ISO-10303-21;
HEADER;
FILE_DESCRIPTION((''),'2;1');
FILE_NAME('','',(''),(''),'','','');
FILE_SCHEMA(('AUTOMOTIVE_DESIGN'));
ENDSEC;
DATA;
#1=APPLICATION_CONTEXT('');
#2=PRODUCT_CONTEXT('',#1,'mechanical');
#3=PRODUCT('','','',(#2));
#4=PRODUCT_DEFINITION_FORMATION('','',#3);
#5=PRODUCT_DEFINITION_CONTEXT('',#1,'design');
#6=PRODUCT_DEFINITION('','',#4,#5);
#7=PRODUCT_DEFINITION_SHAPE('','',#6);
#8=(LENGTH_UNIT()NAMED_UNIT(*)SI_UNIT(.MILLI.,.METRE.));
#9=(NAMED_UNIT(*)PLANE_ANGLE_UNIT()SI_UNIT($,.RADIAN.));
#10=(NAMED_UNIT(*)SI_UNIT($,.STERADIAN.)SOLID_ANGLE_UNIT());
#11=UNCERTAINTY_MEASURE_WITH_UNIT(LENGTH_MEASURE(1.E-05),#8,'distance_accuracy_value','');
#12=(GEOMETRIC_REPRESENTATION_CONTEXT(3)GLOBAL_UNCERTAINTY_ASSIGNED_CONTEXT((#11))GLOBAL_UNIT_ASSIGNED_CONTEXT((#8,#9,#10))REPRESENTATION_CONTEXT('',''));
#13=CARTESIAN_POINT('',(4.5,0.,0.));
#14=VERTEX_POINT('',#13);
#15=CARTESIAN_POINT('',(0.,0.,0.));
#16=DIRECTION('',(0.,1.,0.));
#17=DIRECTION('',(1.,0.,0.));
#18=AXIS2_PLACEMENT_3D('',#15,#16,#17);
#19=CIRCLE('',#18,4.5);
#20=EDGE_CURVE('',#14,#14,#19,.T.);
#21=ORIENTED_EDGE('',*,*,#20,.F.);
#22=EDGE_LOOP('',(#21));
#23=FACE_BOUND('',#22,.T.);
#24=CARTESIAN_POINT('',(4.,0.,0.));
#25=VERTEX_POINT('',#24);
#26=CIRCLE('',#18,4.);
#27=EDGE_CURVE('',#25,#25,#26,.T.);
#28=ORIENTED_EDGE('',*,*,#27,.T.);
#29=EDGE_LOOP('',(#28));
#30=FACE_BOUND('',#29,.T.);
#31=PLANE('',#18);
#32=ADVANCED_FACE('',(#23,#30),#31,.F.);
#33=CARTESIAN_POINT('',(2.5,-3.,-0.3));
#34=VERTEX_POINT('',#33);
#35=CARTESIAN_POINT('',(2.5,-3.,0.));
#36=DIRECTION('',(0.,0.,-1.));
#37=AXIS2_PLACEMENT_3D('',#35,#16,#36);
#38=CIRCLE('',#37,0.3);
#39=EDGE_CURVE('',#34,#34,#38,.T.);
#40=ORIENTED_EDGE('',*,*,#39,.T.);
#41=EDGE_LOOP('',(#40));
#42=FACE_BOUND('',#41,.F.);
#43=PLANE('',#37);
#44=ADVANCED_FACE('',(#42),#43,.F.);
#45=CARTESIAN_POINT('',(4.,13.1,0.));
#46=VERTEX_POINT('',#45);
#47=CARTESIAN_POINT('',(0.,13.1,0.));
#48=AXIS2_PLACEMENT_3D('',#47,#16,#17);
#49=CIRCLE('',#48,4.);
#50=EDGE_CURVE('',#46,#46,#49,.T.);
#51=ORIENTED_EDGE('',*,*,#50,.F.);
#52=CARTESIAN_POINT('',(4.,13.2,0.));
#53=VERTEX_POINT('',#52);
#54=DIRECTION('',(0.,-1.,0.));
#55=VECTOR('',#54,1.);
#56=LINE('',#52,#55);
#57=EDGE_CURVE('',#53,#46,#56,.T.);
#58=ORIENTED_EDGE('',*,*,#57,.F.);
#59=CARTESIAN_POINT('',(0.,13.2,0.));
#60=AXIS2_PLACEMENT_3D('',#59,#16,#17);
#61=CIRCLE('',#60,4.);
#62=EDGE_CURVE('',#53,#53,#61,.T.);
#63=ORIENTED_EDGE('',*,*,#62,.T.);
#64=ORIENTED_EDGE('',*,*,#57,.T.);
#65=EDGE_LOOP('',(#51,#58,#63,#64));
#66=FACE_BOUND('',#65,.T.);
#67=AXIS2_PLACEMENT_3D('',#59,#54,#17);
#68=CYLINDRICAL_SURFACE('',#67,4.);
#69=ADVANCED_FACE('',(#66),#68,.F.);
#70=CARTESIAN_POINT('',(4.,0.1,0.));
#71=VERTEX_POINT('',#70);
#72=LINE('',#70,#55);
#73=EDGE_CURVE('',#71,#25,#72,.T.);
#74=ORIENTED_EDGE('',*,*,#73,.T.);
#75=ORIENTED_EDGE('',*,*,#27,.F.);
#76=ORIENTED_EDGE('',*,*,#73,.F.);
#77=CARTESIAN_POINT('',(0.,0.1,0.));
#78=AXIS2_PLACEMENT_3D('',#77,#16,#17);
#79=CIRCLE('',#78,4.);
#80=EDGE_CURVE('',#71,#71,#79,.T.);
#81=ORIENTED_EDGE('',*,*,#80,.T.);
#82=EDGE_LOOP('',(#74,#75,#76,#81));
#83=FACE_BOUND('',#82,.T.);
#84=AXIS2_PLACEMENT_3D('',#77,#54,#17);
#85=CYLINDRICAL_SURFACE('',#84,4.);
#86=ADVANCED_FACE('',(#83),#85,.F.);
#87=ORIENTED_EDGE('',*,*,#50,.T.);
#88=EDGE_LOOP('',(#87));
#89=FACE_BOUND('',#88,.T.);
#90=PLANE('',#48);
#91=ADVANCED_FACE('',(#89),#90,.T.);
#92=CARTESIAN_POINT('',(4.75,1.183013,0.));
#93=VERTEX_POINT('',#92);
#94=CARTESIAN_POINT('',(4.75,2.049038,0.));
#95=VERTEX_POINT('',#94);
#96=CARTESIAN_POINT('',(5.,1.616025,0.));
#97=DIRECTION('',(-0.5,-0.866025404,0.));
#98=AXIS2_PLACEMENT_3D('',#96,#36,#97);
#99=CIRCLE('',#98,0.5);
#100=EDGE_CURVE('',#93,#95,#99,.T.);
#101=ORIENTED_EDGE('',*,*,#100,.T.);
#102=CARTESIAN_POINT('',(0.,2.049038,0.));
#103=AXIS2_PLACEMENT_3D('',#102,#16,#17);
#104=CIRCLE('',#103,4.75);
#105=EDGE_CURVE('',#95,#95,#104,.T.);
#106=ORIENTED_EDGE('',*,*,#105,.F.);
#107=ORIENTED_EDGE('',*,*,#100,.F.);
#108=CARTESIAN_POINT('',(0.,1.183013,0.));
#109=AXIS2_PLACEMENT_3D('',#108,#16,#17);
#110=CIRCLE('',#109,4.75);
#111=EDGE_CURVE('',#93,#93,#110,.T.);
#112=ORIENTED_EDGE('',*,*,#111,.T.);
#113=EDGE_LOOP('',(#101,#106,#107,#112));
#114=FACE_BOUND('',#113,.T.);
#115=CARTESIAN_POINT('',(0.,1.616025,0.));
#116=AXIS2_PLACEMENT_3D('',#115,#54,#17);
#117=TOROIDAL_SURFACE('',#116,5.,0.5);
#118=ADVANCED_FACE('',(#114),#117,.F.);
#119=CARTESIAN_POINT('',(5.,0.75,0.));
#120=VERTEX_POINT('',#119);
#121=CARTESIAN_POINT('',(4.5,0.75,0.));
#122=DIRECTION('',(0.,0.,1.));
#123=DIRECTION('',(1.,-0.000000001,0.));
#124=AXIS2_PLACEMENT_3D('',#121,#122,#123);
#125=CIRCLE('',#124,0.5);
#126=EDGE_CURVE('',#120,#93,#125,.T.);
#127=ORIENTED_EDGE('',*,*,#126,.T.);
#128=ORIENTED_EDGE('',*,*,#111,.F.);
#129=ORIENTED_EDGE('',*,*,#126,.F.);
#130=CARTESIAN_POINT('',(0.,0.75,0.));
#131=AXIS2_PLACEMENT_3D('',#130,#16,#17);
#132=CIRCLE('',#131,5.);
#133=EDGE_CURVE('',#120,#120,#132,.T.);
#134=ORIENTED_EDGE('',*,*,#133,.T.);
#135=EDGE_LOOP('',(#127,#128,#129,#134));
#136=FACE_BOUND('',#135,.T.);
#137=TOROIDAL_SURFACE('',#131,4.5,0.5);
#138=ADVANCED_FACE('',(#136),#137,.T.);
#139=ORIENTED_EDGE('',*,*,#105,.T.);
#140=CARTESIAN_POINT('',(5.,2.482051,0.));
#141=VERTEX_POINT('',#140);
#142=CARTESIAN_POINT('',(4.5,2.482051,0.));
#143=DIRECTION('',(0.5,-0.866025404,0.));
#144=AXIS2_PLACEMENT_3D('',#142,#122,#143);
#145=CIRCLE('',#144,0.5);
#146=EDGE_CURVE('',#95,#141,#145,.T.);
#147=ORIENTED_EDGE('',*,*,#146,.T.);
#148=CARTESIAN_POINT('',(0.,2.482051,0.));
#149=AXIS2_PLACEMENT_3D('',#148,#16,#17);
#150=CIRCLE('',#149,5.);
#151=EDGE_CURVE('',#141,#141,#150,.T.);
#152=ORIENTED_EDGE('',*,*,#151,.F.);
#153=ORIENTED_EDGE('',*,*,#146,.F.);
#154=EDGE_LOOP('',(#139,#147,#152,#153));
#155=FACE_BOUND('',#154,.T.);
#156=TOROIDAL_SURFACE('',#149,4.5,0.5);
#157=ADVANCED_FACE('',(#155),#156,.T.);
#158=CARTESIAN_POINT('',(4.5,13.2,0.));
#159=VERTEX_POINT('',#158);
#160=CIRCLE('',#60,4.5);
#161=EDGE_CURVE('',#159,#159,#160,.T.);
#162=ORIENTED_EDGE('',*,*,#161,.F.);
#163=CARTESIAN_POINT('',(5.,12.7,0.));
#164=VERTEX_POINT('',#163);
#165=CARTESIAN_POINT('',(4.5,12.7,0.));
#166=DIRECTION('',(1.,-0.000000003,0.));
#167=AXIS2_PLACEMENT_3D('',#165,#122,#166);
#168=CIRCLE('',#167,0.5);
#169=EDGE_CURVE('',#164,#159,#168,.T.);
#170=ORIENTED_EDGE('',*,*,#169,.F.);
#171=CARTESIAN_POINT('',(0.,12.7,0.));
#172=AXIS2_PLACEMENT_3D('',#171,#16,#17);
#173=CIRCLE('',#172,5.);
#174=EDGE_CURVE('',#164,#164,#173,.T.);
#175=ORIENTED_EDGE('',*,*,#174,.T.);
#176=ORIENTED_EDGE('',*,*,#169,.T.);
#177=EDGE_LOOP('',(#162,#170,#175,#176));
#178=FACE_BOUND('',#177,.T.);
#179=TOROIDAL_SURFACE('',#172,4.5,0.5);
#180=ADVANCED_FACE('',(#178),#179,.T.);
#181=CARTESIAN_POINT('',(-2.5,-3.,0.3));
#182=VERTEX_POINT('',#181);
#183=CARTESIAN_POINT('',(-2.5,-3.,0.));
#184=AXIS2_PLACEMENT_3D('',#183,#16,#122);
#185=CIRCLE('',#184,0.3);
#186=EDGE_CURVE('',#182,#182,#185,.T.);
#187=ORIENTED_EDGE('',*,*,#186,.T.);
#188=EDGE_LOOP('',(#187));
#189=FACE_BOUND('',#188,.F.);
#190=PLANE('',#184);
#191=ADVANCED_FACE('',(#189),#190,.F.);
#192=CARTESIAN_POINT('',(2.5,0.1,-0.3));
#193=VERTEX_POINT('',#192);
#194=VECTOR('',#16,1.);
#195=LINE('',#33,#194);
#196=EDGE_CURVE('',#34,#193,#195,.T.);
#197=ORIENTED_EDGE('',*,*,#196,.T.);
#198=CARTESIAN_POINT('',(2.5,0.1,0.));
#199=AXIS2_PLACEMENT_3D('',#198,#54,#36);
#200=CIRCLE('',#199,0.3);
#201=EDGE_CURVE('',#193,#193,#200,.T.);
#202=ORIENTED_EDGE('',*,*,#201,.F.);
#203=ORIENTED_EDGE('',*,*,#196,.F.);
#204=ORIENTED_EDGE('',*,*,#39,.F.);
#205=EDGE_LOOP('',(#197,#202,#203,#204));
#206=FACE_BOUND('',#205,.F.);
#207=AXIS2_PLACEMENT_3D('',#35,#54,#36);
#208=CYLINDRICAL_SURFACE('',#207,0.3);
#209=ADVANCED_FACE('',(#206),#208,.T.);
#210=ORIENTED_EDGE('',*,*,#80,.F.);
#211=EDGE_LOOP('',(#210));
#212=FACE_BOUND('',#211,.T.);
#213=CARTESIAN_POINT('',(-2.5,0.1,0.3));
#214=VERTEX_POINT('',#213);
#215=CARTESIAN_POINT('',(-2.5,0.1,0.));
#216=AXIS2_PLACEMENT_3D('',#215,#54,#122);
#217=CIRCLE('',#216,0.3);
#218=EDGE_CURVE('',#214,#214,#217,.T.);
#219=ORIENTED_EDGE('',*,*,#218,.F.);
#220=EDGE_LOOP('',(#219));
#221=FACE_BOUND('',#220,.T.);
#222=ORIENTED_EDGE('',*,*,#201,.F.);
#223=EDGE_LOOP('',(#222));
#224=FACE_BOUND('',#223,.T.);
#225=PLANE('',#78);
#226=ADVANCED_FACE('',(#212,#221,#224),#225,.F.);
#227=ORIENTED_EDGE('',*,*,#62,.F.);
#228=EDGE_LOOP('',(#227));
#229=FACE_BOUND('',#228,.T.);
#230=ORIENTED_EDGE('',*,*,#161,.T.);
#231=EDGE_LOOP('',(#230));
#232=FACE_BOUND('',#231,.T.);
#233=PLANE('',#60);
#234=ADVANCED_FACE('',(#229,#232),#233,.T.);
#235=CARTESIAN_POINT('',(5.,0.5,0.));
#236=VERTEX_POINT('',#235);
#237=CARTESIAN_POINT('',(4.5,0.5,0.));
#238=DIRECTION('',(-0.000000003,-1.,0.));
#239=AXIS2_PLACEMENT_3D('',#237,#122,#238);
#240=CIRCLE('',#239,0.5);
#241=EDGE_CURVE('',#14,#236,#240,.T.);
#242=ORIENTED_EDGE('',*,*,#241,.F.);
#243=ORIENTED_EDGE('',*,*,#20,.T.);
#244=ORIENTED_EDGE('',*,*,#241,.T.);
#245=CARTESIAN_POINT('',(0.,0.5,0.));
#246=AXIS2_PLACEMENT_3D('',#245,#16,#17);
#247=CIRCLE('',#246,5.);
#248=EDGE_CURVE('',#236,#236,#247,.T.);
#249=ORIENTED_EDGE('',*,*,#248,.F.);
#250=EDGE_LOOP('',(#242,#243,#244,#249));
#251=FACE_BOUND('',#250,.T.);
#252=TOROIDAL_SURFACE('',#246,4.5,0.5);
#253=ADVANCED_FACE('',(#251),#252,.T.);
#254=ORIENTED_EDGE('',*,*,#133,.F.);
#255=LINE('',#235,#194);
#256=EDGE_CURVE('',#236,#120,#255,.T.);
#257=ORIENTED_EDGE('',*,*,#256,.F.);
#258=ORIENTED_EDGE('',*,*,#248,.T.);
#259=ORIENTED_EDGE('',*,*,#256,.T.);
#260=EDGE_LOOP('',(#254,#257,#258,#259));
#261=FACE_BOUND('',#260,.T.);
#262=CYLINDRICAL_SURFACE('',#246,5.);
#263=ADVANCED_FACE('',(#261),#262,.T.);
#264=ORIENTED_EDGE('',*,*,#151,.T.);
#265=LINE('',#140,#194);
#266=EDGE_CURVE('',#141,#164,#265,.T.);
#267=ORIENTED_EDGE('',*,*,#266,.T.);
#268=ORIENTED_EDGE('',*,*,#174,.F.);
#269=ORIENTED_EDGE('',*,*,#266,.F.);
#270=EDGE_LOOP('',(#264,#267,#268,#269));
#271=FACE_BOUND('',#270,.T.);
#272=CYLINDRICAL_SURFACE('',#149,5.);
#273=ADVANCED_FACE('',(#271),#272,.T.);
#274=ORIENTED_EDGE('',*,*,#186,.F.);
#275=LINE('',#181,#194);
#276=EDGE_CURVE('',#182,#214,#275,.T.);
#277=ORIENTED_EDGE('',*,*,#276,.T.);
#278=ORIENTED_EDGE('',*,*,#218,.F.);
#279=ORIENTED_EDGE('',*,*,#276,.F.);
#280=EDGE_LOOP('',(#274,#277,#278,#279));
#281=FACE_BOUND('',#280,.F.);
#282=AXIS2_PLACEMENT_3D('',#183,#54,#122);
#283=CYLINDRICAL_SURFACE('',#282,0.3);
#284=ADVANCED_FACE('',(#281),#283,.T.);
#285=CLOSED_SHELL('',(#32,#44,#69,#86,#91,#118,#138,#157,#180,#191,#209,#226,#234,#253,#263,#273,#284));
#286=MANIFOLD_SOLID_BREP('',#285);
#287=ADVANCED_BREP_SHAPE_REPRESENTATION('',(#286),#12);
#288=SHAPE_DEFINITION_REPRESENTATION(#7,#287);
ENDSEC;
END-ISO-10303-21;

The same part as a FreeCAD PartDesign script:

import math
import FreeCAD as App
import Part
import Sketcher

V = App.Vector

doc = App.newDocument("Part")
body = doc.addObject("PartDesign::Body", "Body")

# Sketch on XZ plane
sketch1 = doc.addObject("Sketcher::SketchObject", "Sketch")
body.addObject(sketch1)
sketch1.AttachmentSupport = (doc.XZ_Plane, [""])
sketch1.MapMode = "FlatFace"
sketch1.addGeometry(Part.Circle(V(-2.5, 0, 0), V(0, 0, 1), 0.3), False)
sketch1.addConstraint([
    Sketcher.Constraint("PointOnObject", 0, 3, -1),
    Sketcher.Constraint("Diameter", 0, 0.6),
    Sketcher.Constraint("DistanceX", 0, 3, -1, 1, 2.5),
])
pad1 = doc.addObject("PartDesign::Pad", "Pad")
body.addObject(pad1)
pad1.Profile = sketch1
pad1.Type = "TwoLengths"
pad1.Length = 1
pad1.Length2 = 3
pad1.Reversed = True
body2 = doc.addObject("PartDesign::Body", "Body001")

# Sketch on XZ plane
sketch2 = doc.addObject("Sketcher::SketchObject", "Sketch001")
body2.addObject(sketch2)
sketch2.AttachmentSupport = (doc.getObject("XZ_Plane001"), [""])
sketch2.MapMode = "FlatFace"
sketch2.addGeometry(Part.Circle(V(2.5, 0, 0), V(0, 0, 1), 0.3), False)
sketch2.addConstraint([
    Sketcher.Constraint("PointOnObject", 0, 3, -1),
    Sketcher.Constraint("Diameter", 0, 0.6),
    Sketcher.Constraint("DistanceX", -1, 1, 0, 3, 2.5),
])
pad2 = doc.addObject("PartDesign::Pad", "Pad001")
body2.addObject(pad2)
pad2.Profile = sketch2
pad2.Type = "TwoLengths"
pad2.Length = 1
pad2.Length2 = 3
pad2.Reversed = True
body.AllowCompound = True
doc.recompute()

boolean = doc.addObject("PartDesign::Boolean", "Boolean")
body.addObject(boolean)
boolean.Type = "Fuse"
boolean.addObjects([body2])

# Sketch on XY plane
sketch3 = doc.addObject("Sketcher::SketchObject", "Sketch002")
body.addObject(sketch3)
sketch3.AttachmentSupport = (doc.XY_Plane, [""])
sketch3.MapMode = "FlatFace"
sketch3.addGeometry([
    Part.LineSegment(V(5, 0.5, 0), V(5, 0.75, 0)),  # 0
    Part.ArcOfCircle(Part.Circle(V(4.5, 0.75, 0), V(0, 0, 1), 0.5), math.radians(0), math.radians(60)),  # 1
    Part.ArcOfCircle(Part.Circle(V(5, 1.62, 0), V(0, 0, 1), 0.5), math.radians(120), math.radians(240)),  # 2
    Part.ArcOfCircle(Part.Circle(V(4.5, 2.48, 0), V(0, 0, 1), 0.5), math.radians(-60), math.radians(0)),  # 3
    Part.LineSegment(V(5, 2.48, 0), V(5, 12.7, 0)),  # 4
    Part.ArcOfCircle(Part.Circle(V(4.5, 12.7, 0), V(0, 0, 1), 0.5), math.radians(0), math.radians(90)),  # 5
    Part.LineSegment(V(4.5, 13.2, 0), V(4, 13.2, 0)),  # 6
    Part.LineSegment(V(4, 13.2, 0), V(4, 13.1, 0)),  # 7
    Part.LineSegment(V(4, 13.1, 0), V(0, 13.1, 0)),  # 8
    Part.LineSegment(V(0, 13.1, 0), V(0, 0.1, 0)),  # 9
    Part.LineSegment(V(0, 0.1, 0), V(4, 0.1, 0)),  # 10
    Part.LineSegment(V(4, 0.1, 0), V(4, 0, 0)),  # 11
    Part.LineSegment(V(4, 0, 0), V(4.5, 0, 0)),  # 12
    Part.ArcOfCircle(Part.Circle(V(4.5, 0.5, 0), V(0, 0, 1), 0.5), math.radians(-90), math.radians(0)),  # 13
], False)
sketch3.addConstraint([
    Sketcher.Constraint("Tangent", 0, 2, 1, 1),
    Sketcher.Constraint("Tangent", 1, 2, 2, 2),
    Sketcher.Constraint("Tangent", 2, 1, 3, 1),
    Sketcher.Constraint("Tangent", 3, 2, 4, 1),
    Sketcher.Constraint("Tangent", 4, 2, 5, 1),
    Sketcher.Constraint("Tangent", 5, 2, 6, 1),
    Sketcher.Constraint("Coincident", 6, 2, 7, 1),
    Sketcher.Constraint("Coincident", 7, 2, 8, 1),
    Sketcher.Constraint("Coincident", 8, 2, 9, 1),
    Sketcher.Constraint("Coincident", 9, 2, 10, 1),
    Sketcher.Constraint("Coincident", 10, 2, 11, 1),
    Sketcher.Constraint("Coincident", 11, 2, 12, 1),
    Sketcher.Constraint("Tangent", 12, 2, 13, 1),
    Sketcher.Constraint("Tangent", 13, 2, 0, 1),
    Sketcher.Constraint("Vertical", 0),
    Sketcher.Constraint("Vertical", 4),
    Sketcher.Constraint("Horizontal", 6),
    Sketcher.Constraint("Vertical", 7),
    Sketcher.Constraint("Horizontal", 8),
    Sketcher.Constraint("Vertical", 9),
    Sketcher.Constraint("Horizontal", 10),
    Sketcher.Constraint("Vertical", 11),
    Sketcher.Constraint("Horizontal", 12),
    Sketcher.Constraint("Equal", 1, 2),
    Sketcher.Constraint("Equal", 2, 3),
    Sketcher.Constraint("Equal", 3, 5),
    Sketcher.Constraint("Equal", 5, 13),
    Sketcher.Constraint("PointOnObject", 8, 2, -2),
    Sketcher.Constraint("PointOnObject", 11, 2, -1),
    Sketcher.Constraint("Vertical", 1, 3, 3, 3),
    Sketcher.Constraint("Vertical", 2, 3, 0, 2),
    Sketcher.Constraint("Vertical", 7, 2, 10, 2),
    Sketcher.Constraint("Equal", 7, 11),
    Sketcher.Constraint("Radius", 1, 0.5),
    Sketcher.Constraint("DistanceX", 8, 2, 8, 1, 4.0),
    Sketcher.Constraint("DistanceY", 9, 2, 9, 1, 13.0),
    Sketcher.Constraint("DistanceX", 6, 2, 6, 1, 0.5),
    Sketcher.Constraint("DistanceY", 7, 2, 7, 1, 0.1),
    Sketcher.Constraint("DistanceY", 0, 1, 0, 2, 0.25),
])
revolution = doc.addObject("PartDesign::Revolution", "Revolution")
body.addObject(revolution)
revolution.Profile = sketch3
revolution.ReferenceAxis = (sketch3, ["V_Axis"])
revolution.Angle = 360

doc.recompute()
